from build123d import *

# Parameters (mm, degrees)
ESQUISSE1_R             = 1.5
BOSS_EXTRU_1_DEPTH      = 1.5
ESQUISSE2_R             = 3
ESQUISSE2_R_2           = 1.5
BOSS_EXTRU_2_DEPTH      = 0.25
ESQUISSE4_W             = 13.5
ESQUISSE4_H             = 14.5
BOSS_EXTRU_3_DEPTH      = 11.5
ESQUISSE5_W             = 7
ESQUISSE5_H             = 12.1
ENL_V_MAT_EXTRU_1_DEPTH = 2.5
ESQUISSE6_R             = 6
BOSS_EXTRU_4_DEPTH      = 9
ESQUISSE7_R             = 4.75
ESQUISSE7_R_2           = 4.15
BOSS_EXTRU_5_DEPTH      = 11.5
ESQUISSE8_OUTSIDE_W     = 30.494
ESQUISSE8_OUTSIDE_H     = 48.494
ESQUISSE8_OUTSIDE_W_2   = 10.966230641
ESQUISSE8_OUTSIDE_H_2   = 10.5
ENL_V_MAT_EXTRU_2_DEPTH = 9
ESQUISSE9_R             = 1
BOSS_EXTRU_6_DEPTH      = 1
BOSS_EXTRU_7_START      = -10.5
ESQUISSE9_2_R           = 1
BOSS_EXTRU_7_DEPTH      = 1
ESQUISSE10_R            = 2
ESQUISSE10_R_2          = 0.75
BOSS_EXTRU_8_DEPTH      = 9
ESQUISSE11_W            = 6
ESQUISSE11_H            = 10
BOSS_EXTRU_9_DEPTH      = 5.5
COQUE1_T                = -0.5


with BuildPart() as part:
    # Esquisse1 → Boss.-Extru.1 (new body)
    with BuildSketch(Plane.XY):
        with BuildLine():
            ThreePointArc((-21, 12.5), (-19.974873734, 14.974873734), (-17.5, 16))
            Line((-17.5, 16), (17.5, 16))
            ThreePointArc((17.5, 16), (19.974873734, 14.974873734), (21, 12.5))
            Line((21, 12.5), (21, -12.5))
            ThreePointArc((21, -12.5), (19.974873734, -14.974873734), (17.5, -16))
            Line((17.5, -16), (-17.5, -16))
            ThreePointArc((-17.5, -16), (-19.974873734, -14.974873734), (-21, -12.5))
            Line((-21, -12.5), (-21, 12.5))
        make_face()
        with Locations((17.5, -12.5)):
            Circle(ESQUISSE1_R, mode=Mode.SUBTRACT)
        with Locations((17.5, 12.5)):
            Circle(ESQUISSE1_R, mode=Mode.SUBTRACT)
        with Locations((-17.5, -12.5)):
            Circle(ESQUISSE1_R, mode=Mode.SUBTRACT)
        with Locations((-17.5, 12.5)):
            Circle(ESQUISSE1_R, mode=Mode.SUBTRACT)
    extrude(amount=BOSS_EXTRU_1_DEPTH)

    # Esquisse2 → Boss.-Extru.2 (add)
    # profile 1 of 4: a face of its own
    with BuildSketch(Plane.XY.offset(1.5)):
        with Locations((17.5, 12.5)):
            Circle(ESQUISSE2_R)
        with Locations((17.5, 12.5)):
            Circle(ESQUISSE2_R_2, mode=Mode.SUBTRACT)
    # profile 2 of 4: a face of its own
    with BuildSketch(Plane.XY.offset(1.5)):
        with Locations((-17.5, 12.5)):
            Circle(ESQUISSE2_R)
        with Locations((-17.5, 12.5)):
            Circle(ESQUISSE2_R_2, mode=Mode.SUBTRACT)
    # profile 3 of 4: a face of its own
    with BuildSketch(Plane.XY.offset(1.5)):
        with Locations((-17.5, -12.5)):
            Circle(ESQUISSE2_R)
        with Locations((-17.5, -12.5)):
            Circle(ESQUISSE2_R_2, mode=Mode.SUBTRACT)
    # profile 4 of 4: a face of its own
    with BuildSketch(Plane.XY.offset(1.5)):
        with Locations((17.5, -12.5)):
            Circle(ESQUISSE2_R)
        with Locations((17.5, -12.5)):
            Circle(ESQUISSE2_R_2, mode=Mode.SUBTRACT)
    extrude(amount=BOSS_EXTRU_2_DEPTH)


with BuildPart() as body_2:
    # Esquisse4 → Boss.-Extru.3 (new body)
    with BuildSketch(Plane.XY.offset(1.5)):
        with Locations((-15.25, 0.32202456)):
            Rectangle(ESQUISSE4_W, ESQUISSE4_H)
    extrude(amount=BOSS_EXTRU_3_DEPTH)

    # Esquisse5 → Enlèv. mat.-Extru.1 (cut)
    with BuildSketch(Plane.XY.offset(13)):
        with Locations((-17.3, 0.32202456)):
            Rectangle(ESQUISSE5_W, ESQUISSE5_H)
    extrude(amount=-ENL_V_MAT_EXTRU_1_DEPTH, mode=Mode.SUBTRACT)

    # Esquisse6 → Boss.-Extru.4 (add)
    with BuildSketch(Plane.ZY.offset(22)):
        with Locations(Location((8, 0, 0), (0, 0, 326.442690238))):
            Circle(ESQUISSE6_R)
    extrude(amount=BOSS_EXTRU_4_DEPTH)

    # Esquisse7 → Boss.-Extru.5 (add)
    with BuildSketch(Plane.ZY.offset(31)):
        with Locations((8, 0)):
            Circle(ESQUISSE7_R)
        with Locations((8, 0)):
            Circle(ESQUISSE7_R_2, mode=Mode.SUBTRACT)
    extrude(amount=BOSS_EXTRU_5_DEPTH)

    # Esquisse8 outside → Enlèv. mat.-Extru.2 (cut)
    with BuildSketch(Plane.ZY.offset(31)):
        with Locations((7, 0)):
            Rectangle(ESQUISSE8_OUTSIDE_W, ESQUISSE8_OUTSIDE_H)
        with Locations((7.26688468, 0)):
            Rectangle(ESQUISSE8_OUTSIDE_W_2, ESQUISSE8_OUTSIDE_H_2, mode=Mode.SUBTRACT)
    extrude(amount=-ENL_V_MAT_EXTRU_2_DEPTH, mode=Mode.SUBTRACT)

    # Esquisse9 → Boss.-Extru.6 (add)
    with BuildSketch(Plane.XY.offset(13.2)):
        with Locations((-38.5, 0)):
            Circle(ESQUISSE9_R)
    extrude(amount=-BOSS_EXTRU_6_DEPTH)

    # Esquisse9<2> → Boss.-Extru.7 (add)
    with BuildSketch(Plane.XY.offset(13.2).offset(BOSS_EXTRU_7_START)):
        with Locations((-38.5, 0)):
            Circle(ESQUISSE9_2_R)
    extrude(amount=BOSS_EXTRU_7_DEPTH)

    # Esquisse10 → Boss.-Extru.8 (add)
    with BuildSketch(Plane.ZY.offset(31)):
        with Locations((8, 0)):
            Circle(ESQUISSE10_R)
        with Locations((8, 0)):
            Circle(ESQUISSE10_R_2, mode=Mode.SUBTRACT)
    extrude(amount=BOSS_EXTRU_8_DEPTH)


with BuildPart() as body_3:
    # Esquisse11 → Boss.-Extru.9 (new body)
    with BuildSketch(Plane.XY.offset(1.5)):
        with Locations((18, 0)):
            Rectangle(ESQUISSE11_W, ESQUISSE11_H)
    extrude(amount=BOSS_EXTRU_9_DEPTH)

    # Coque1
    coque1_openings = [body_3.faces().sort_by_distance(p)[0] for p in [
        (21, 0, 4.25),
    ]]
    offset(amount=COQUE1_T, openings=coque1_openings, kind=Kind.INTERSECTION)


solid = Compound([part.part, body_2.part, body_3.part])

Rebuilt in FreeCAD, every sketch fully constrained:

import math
import FreeCAD as App
import Part
import Sketcher

V = App.Vector


def faces_at(feature, points):
    """Names of the faces that lie closest to the given points."""
    faces = feature.Shape.Faces
    near = lambda p: min(range(len(faces)), key=lambda i: faces[i].distToShape(Part.Vertex(*p))[0])
    return sorted({f"Face{near(p) + 1}" for p in points})


def add_polygon(sketch, points):
    """Adds a closed chain of lines whose ends are joined by coincident constraints."""
    first, n = sketch.GeometryCount, len(points)
    for a, b in zip(points, points[1:] + points[:1]):
        sketch.addGeometry(Part.LineSegment(App.Vector(*a, 0), App.Vector(*b, 0)), False)
    for i in range(n):
        sketch.addConstraint(Sketcher.Constraint("Coincident", first + i, 2, first + (i + 1) % n, 1))

doc = App.newDocument("Part")
body = doc.addObject("PartDesign::Body", "Body")

# Sketch on XY plane
sketch1 = body.newObject("Sketcher::SketchObject", "Sketch")
sketch1.AttachmentSupport = (doc.getObject("XY_Plane"), [""])
sketch1.MapMode = "FlatFace"
sketch1.addGeometry(Part.ArcOfCircle(Part.Circle(V(-17.5, 12.5, 0), V(0, 0, 1), 3.5), math.radians(90), math.radians(180)), False)
sketch1.addGeometry(Part.LineSegment(V(-21, 12.5, 0), V(-21, -12.5, 0)), False)
sketch1.addGeometry(Part.ArcOfCircle(Part.Circle(V(-17.5, -12.5, 0), V(0, 0, 1), 3.5), math.radians(-180), math.radians(-90)), False)
sketch1.addGeometry(Part.LineSegment(V(-17.5, -16, 0), V(17.5, -16, 0)), False)
sketch1.addGeometry(Part.ArcOfCircle(Part.Circle(V(17.5, -12.5, 0), V(0, 0, 1), 3.5), math.radians(-90), math.radians(0)), False)
sketch1.addGeometry(Part.LineSegment(V(21, -12.5, 0), V(21, 12.5, 0)), False)
sketch1.addGeometry(Part.ArcOfCircle(Part.Circle(V(17.5, 12.5, 0), V(0, 0, 1), 3.5), math.radians(0), math.radians(90)), False)
sketch1.addGeometry(Part.LineSegment(V(17.5, 16, 0), V(-17.5, 16, 0)), False)
sketch1.addGeometry(Part.Circle(V(17.5, -12.5, 0), V(0, 0, 1), 1.5), False)
sketch1.addGeometry(Part.Circle(V(-17.5, -12.5, 0), V(0, 0, 1), 1.5), False)
sketch1.addGeometry(Part.Circle(V(17.5, 12.5, 0), V(0, 0, 1), 1.5), False)
sketch1.addGeometry(Part.Circle(V(-17.5, 12.5, 0), V(0, 0, 1), 1.5), False)
sketch1.addConstraint(Sketcher.Constraint("Tangent", 0, 2, 1, 1))
sketch1.addConstraint(Sketcher.Constraint("Tangent", 1, 2, 2, 1))
sketch1.addConstraint(Sketcher.Constraint("Tangent", 2, 2, 3, 1))
sketch1.addConstraint(Sketcher.Constraint("Tangent", 3, 2, 4, 1))
sketch1.addConstraint(Sketcher.Constraint("Tangent", 4, 2, 5, 1))
sketch1.addConstraint(Sketcher.Constraint("Tangent", 5, 2, 6, 1))
sketch1.addConstraint(Sketcher.Constraint("Tangent", 6, 2, 7, 1))
sketch1.addConstraint(Sketcher.Constraint("Tangent", 7, 2, 0, 1))
sketch1.addConstraint(Sketcher.Constraint("Vertical", 1))
sketch1.addConstraint(Sketcher.Constraint("Horizontal", 3))
sketch1.addConstraint(Sketcher.Constraint("Vertical", 5))
sketch1.addConstraint(Sketcher.Constraint("Horizontal", 7))
sketch1.addConstraint(Sketcher.Constraint("Coincident", 8, 3, 4, 3))
sketch1.addConstraint(Sketcher.Constraint("Coincident", 9, 3, 2, 3))
sketch1.addConstraint(Sketcher.Constraint("Coincident", 10, 3, 6, 3))
sketch1.addConstraint(Sketcher.Constraint("Coincident", 11, 3, 0, 3))
sketch1.addConstraint(Sketcher.Constraint("Equal", 0, 2))
sketch1.addConstraint(Sketcher.Constraint("Equal", 2, 4))
sketch1.addConstraint(Sketcher.Constraint("Equal", 4, 6))
sketch1.addConstraint(Sketcher.Constraint("Equal", 8, 9))
sketch1.addConstraint(Sketcher.Constraint("Equal", 9, 10))
sketch1.addConstraint(Sketcher.Constraint("Equal", 10, 11))
sketch1.addConstraint(Sketcher.Constraint("Symmetric", 0, 3, 4, 3, -1, 1))
sketch1.addConstraint(Sketcher.Constraint("Diameter", 8, 3.0))
sketch1.addConstraint(Sketcher.Constraint("Radius", 0, 3.5))
sketch1.addConstraint(Sketcher.Constraint("DistanceX", 3, 1, 3, 2, 35.0))
sketch1.addConstraint(Sketcher.Constraint("DistanceY", 1, 2, 1, 1, 25.0))
pad1 = body.newObject("PartDesign::Pad", "Pad")
pad1.Profile = sketch1
pad1.Length = 1.5

# Sketch on XY plane
sketch2 = body.newObject("Sketcher::SketchObject", "Sketch001")
sketch2.AttachmentSupport = (doc.getObject("XY_Plane"), [""])
sketch2.MapMode = "FlatFace"
sketch2.AttachmentOffset = App.Placement(V(0, 0, 1.5), App.Rotation())
sketch2.addGeometry(Part.Circle(V(17.5, 12.5, 0), V(0, 0, 1), 3), False)
sketch2.addGeometry(Part.Circle(V(17.5, 12.5, 0), V(0, 0, 1), 1.5), False)
sketch2.addGeometry(Part.Circle(V(-17.5, 12.5, 0), V(0, 0, 1), 3), False)
sketch2.addGeometry(Part.Circle(V(-17.5, 12.5, 0), V(0, 0, 1), 1.5), False)
sketch2.addGeometry(Part.Circle(V(-17.5, -12.5, 0), V(0, 0, 1), 3), False)
sketch2.addGeometry(Part.Circle(V(-17.5, -12.5, 0), V(0, 0, 1), 1.5), False)
sketch2.addGeometry(Part.Circle(V(17.5, -12.5, 0), V(0, 0, 1), 3), False)
sketch2.addGeometry(Part.Circle(V(17.5, -12.5, 0), V(0, 0, 1), 1.5), False)
sketch2.addConstraint(Sketcher.Constraint("Coincident", 1, 3, 0, 3))
sketch2.addConstraint(Sketcher.Constraint("Coincident", 3, 3, 2, 3))
sketch2.addConstraint(Sketcher.Constraint("Coincident", 5, 3, 4, 3))
sketch2.addConstraint(Sketcher.Constraint("Coincident", 7, 3, 6, 3))
sketch2.addConstraint(Sketcher.Constraint("Equal", 0, 2))
sketch2.addConstraint(Sketcher.Constraint("Equal", 1, 3))
sketch2.addConstraint(Sketcher.Constraint("Equal", 2, 4))
sketch2.addConstraint(Sketcher.Constraint("Equal", 3, 5))
sketch2.addConstraint(Sketcher.Constraint("Equal", 4, 6))
sketch2.addConstraint(Sketcher.Constraint("Equal", 5, 7))
sketch2.addConstraint(Sketcher.Constraint("Symmetric", 0, 3, 4, 3, -1, 1))
sketch2.addConstraint(Sketcher.Constraint("Symmetric", 2, 3, 6, 3, -1, 1))
sketch2.addConstraint(Sketcher.Constraint("Symmetric", 0, 3, 2, 3, -2))
sketch2.addConstraint(Sketcher.Constraint("Diameter", 0, 6.0))
sketch2.addConstraint(Sketcher.Constraint("Diameter", 1, 3.0))
sketch2.addConstraint(Sketcher.Constraint("DistanceX", 2, 3, 0, 3, 35.0))
sketch2.addConstraint(Sketcher.Constraint("DistanceY", 4, 3, 2, 3, 25.0))
pad2 = body.newObject("PartDesign::Pad", "Pad001")
pad2.Profile = sketch2
pad2.Length = 0.25
body2 = doc.addObject("PartDesign::Body", "Body001")

# Sketch on XY plane
sketch3 = body2.newObject("Sketcher::SketchObject", "Sketch002")
sketch3.AttachmentSupport = (doc.getObject("XY_Plane001"), [""])
sketch3.MapMode = "FlatFace"
sketch3.AttachmentOffset = App.Placement(V(0, 0, 1.5), App.Rotation())
add_polygon(sketch3, [(-22, 8), (-22, -7), (-8, -7), (-8, 8)])  # lines 0-3
sketch3.addConstraint(Sketcher.Constraint("Vertical", 0))
sketch3.addConstraint(Sketcher.Constraint("Horizontal", 1))
sketch3.addConstraint(Sketcher.Constraint("Vertical", 2))
sketch3.addConstraint(Sketcher.Constraint("Horizontal", 3))
sketch3.addConstraint(Sketcher.Constraint("DistanceX", 1, 1, 1, 2, 13.5))
sketch3.addConstraint(Sketcher.Constraint("DistanceY", 0, 2, 0, 1, 14.5))
sketch3.addConstraint(Sketcher.Constraint("DistanceX", 0, 2, -1, 1, 22.0))
sketch3.addConstraint(Sketcher.Constraint("DistanceY", 0, 2, -1, 1, 6.927975))
pad3 = body2.newObject("PartDesign::Pad", "Pad002")
pad3.Profile = sketch3
pad3.Length = 11.5

# Sketch on XY plane
sketch4 = body2.newObject("Sketcher::SketchObject", "Sketch003")
sketch4.AttachmentSupport = (doc.getObject("XY_Plane001"), [""])
sketch4.MapMode = "FlatFace"
sketch4.AttachmentOffset = App.Placement(V(0, 0, 13), App.Rotation())
add_polygon(sketch4, [(-21, 6), (-21, -6), (-14, -6), (-14, 6)])  # lines 0-3
sketch4.addConstraint(Sketcher.Constraint("Vertical", 0))
sketch4.addConstraint(Sketcher.Constraint("Horizontal", 1))
sketch4.addConstraint(Sketcher.Constraint("Vertical", 2))
sketch4.addConstraint(Sketcher.Constraint("Horizontal", 3))
sketch4.addConstraint(Sketcher.Constraint("DistanceX", 1, 1, 1, 2, 7.0))
sketch4.addConstraint(Sketcher.Constraint("DistanceY", 0, 2, 0, 1, 12.1))
sketch4.addConstraint(Sketcher.Constraint("DistanceX", 0, 2, -1, 1, 20.8))
sketch4.addConstraint(Sketcher.Constraint("DistanceY", 0, 2, -1, 1, 5.727975))
pocket1 = body2.newObject("PartDesign::Pocket", "Pocket")
pocket1.Profile = sketch4
pocket1.Length = 2.5

# Sketch on YZ plane
sketch5 = body2.newObject("Sketcher::SketchObject", "Sketch004")
sketch5.AttachmentSupport = (doc.getObject("YZ_Plane001"), [""])
sketch5.MapMode = "FlatFace"
sketch5.AttachmentOffset = App.Placement(V(0, 0, -22), App.Rotation())
sketch5.addGeometry(Part.Circle(V(0, 8, 0), V(0, 0, 1), 6), False)
sketch5.addConstraint(Sketcher.Constraint("PointOnObject", 0, 3, -2))
sketch5.addConstraint(Sketcher.Constraint("Diameter", 0, 12.0))
sketch5.addConstraint(Sketcher.Constraint("DistanceY", -1, 1, 0, 3, 8.0))
pad4 = body2.newObject("PartDesign::Pad", "Pad003")
pad4.Profile = sketch5
pad4.Length = 9
pad4.Reversed = True

# Sketch on YZ plane
sketch6 = body2.newObject("Sketcher::SketchObject", "Sketch005")
sketch6.AttachmentSupport = (doc.getObject("YZ_Plane001"), [""])
sketch6.MapMode = "FlatFace"
sketch6.AttachmentOffset = App.Placement(V(0, 0, -31), App.Rotation())
sketch6.addGeometry(Part.Circle(V(0, 8, 0), V(0, 0, 1), 4.8), False)
sketch6.addGeometry(Part.Circle(V(0, 8, 0), V(0, 0, 1), 4.2), False)
sketch6.addConstraint(Sketcher.Constraint("Coincident", 1, 3, 0, 3))
sketch6.addConstraint(Sketcher.Constraint("PointOnObject", 0, 3, -2))
sketch6.addConstraint(Sketcher.Constraint("Diameter", 0, 9.5))
sketch6.addConstraint(Sketcher.Constraint("Diameter", 1, 8.3))
sketch6.addConstraint(Sketcher.Constraint("DistanceY", -1, 1, 0, 3, 8.0))
pad5 = body2.newObject("PartDesign::Pad", "Pad004")
pad5.Profile = sketch6
pad5.Length = 11.5
pad5.Reversed = True

# Sketch on YZ plane
sketch7 = body2.newObject("Sketcher::SketchObject", "Sketch006")
sketch7.AttachmentSupport = (doc.getObject("YZ_Plane001"), [""])
sketch7.MapMode = "FlatFace"
sketch7.AttachmentOffset = App.Placement(V(0, 0, -31), App.Rotation())
add_polygon(sketch7, [(24, -8), (-24, -8), (-24, 22), (24, 22)])  # lines 0-3
add_polygon(sketch7, [(-5, 13), (-5, 2), (5, 2), (5, 13)])  # lines 4-7
sketch7.addConstraint(Sketcher.Constraint("Horizontal", 0))
sketch7.addConstraint(Sketcher.Constraint("Vertical", 1))
sketch7.addConstraint(Sketcher.Constraint("Horizontal", 2))
sketch7.addConstraint(Sketcher.Constraint("Vertical", 3))
sketch7.addConstraint(Sketcher.Constraint("Vertical", 4))
sketch7.addConstraint(Sketcher.Constraint("Horizontal", 5))
sketch7.addConstraint(Sketcher.Constraint("Vertical", 6))
sketch7.addConstraint(Sketcher.Constraint("Horizontal", 7))
sketch7.addConstraint(Sketcher.Constraint("DistanceX", 5, 1, 5, 2, 10.5))
sketch7.addConstraint(Sketcher.Constraint("DistanceX", 0, 2, 0, 1, 48.494))
sketch7.addConstraint(Sketcher.Constraint("DistanceY", 1, 1, 1, 2, 30.494))
sketch7.addConstraint(Sketcher.Constraint("DistanceX", 4, 2, -1, 1, 5.25))
sketch7.addConstraint(Sketcher.Constraint("DistanceY", -1, 1, 6, 2, 12.75))
sketch7.addConstraint(Sketcher.Constraint("DistanceX", 0, 2, -1, 1, 24.247))
sketch7.addConstraint(Sketcher.Constraint("DistanceY", 0, 2, -1, 1, 8.247))
sketch7.addConstraint(Sketcher.Constraint("DistanceY", 4, 2, 4, 1, 10.966231))
pocket2 = body2.newObject("PartDesign::Pocket", "Pocket001")
pocket2.Profile = sketch7
pocket2.Length = 9
pocket2.Reversed = True

# Sketch on XY plane
sketch8 = body2.newObject("Sketcher::SketchObject", "Sketch007")
sketch8.AttachmentSupport = (doc.getObject("XY_Plane001"), [""])
sketch8.MapMode = "FlatFace"
sketch8.AttachmentOffset = App.Placement(V(0, 0, 13.2), App.Rotation())
sketch8.addGeometry(Part.Circle(V(-38.5, 0, 0), V(0, 0, 1), 1), False)
sketch8.addConstraint(Sketcher.Constraint("PointOnObject", 0, 3, -1))
sketch8.addConstraint(Sketcher.Constraint("Diameter", 0, 2.0))
sketch8.addConstraint(Sketcher.Constraint("DistanceX", 0, 3, -1, 1, 38.5))
pad6 = body2.newObject("PartDesign::Pad", "Pad005")
pad6.Profile = sketch8
pad6.Length = 1
pad6.Reversed = True

# Sketch on XY plane
sketch9 = body2.newObject("Sketcher::SketchObject", "Sketch008")
sketch9.AttachmentSupport = (doc.getObject("XY_Plane001"), [""])
sketch9.MapMode = "FlatFace"
sketch9.AttachmentOffset = App.Placement(V(0, 0, 2.7), App.Rotation())
sketch9.addGeometry(Part.Circle(V(-38.5, 0, 0), V(0, 0, 1), 1), False)
sketch9.addConstraint(Sketcher.Constraint("PointOnObject", 0, 3, -1))
sketch9.addConstraint(Sketcher.Constraint("Diameter", 0, 2.0))
sketch9.addConstraint(Sketcher.Constraint("DistanceX", 0, 3, -1, 1, 38.5))
pad7 = body2.newObject("PartDesign::Pad", "Pad006")
pad7.Profile = sketch9
pad7.Length = 1

# Sketch on YZ plane
sketch10 = body2.newObject("Sketcher::SketchObject", "Sketch009")
sketch10.AttachmentSupport = (doc.getObject("YZ_Plane001"), [""])
sketch10.MapMode = "FlatFace"
sketch10.AttachmentOffset = App.Placement(V(0, 0, -31), App.Rotation())
sketch10.addGeometry(Part.Circle(V(0, 8, 0), V(0, 0, 1), 2), False)
sketch10.addGeometry(Part.Circle(V(0, 8, 0), V(0, 0, 1), 0.8), False)
sketch10.addConstraint(Sketcher.Constraint("Coincident", 1, 3, 0, 3))
sketch10.addConstraint(Sketcher.Constraint("PointOnObject", 0, 3, -2))
sketch10.addConstraint(Sketcher.Constraint("Diameter", 0, 4.0))
sketch10.addConstraint(Sketcher.Constraint("Diameter", 1, 1.5))
sketch10.addConstraint(Sketcher.Constraint("DistanceY", -1, 1, 0, 3, 8.0))
pad8 = body2.newObject("PartDesign::Pad", "Pad007")
pad8.Profile = sketch10
pad8.Length = 9
pad8.Reversed = True
body3 = doc.addObject("PartDesign::Body", "Body002")

# Sketch on XY plane
sketch11 = body3.newObject("Sketcher::SketchObject", "Sketch010")
sketch11.AttachmentSupport = (doc.getObject("XY_Plane002"), [""])
sketch11.MapMode = "FlatFace"
sketch11.AttachmentOffset = App.Placement(V(0, 0, 1.5), App.Rotation())
add_polygon(sketch11, [(15, 5), (15, -5), (21, -5), (21, 5)])  # lines 0-3
sketch11.addConstraint(Sketcher.Constraint("Vertical", 0))
sketch11.addConstraint(Sketcher.Constraint("Horizontal", 1))
sketch11.addConstraint(Sketcher.Constraint("Vertical", 2))
sketch11.addConstraint(Sketcher.Constraint("Horizontal", 3))
sketch11.addConstraint(Sketcher.Constraint("DistanceX", 1, 1, 1, 2, 6.0))
sketch11.addConstraint(Sketcher.Constraint("DistanceY", 0, 2, 0, 1, 10.0))
sketch11.addConstraint(Sketcher.Constraint("DistanceX", -1, 1, 0, 2, 15.0))
sketch11.addConstraint(Sketcher.Constraint("DistanceY", 0, 2, -1, 1, 5.0))
pad9 = body3.newObject("PartDesign::Pad", "Pad008")
pad9.Profile = sketch11
pad9.Length = 5.5
doc.recompute()

thickness = body3.newObject("PartDesign::Thickness", "Thickness")
thickness.Base = (pad9, faces_at(pad9, [(21, 0, 4.25)]))
thickness.Value = 0.5
thickness.Reversed = True
thickness.Join = "Intersection"

doc.recompute()
